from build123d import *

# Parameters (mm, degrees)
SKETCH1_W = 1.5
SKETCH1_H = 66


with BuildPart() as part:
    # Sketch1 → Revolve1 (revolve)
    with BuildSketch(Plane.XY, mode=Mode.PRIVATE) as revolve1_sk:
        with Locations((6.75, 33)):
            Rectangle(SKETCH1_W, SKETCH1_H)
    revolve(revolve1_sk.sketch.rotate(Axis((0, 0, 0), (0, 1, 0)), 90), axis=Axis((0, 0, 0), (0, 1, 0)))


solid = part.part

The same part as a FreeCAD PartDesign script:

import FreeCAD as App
import Part
import Sketcher

V = App.Vector

doc = App.newDocument("Part")
body = doc.addObject("PartDesign::Body", "Body")

# Sketch on XY plane
sketch1 = body.newObject("Sketcher::SketchObject", "Sketch")
sketch1.AttachmentSupport = (doc.getObject("XY_Plane"), [""])
sketch1.MapMode = "FlatFace"
sketch1.addGeometry(Part.LineSegment(V(6, 66, 0), V(6, 0, 0)), False)
sketch1.addGeometry(Part.LineSegment(V(6, 0, 0), V(7.5, 0, 0)), False)
sketch1.addGeometry(Part.LineSegment(V(7.5, 0, 0), V(7.5, 66, 0)), False)
sketch1.addGeometry(Part.LineSegment(V(7.5, 66, 0), V(6, 66, 0)), False)
sketch1.addConstraint(Sketcher.Constraint("Coincident", 0, 2, 1, 1))
sketch1.addConstraint(Sketcher.Constraint("Coincident", 1, 2, 2, 1))
sketch1.addConstraint(Sketcher.Constraint("Coincident", 2, 2, 3, 1))
sketch1.addConstraint(Sketcher.Constraint("Coincident", 3, 2, 0, 1))
sketch1.addConstraint(Sketcher.Constraint("Vertical", 0))
sketch1.addConstraint(Sketcher.Constraint("Horizontal", 1))
sketch1.addConstraint(Sketcher.Constraint("Vertical", 2))
sketch1.addConstraint(Sketcher.Constraint("Horizontal", 3))
sketch1.addConstraint(Sketcher.Constraint("PointOnObject", 0, 2, -1))
sketch1.addConstraint(Sketcher.Constraint("DistanceY", 0, 2, 0, 1, 66.0))
sketch1.addConstraint(Sketcher.Constraint("DistanceX", 1, 1, 1, 2, 1.5))
sketch1.addConstraint(Sketcher.Constraint("DistanceX", -1, 1, 0, 2, 6.0))
revolution = body.newObject("PartDesign::Revolution", "Revolution")
revolution.Profile = sketch1
revolution.ReferenceAxis = (sketch1, ["V_Axis"])
revolution.Angle = 360

doc.recompute()
